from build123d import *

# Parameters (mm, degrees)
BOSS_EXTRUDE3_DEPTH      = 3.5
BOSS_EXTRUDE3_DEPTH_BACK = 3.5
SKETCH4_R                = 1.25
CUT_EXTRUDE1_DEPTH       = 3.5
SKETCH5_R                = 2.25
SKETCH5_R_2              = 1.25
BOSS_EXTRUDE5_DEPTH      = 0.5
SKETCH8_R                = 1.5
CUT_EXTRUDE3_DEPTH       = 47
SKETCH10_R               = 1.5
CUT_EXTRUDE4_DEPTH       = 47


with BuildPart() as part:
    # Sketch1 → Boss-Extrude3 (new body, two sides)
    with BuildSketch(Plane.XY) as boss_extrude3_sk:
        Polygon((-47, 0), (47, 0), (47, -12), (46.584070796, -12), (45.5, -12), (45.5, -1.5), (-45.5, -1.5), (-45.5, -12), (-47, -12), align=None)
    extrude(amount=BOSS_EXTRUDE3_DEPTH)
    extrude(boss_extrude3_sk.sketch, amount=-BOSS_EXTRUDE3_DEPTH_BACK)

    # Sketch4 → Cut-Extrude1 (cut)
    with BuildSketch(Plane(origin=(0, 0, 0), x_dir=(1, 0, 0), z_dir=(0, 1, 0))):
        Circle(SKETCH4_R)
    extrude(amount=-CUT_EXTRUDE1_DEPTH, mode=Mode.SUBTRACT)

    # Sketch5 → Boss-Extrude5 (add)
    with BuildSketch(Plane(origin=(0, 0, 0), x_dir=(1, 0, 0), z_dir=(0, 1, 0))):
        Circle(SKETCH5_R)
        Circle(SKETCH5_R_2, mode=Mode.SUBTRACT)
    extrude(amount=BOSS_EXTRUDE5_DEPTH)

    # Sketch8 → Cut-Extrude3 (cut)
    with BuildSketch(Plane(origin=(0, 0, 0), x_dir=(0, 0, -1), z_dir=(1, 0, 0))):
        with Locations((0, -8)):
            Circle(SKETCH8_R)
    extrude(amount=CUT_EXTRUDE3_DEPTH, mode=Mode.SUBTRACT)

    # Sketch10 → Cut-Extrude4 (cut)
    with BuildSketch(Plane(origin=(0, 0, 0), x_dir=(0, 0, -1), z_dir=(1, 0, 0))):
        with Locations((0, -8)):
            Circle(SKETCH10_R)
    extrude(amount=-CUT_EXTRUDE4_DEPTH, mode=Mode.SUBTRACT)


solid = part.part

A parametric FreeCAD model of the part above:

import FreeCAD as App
import Part
import Sketcher
from FreeCAD import Vector
Q = App.Units.Quantity


def add_polygon(sketch, points):
    """Adds a closed chain of lines whose ends are joined by coincident constraints."""
    first, n = sketch.GeometryCount, len(points)
    for a, b in zip(points, points[1:] + points[:1]):
        sketch.addGeometry(Part.LineSegment(App.Vector(*a, 0), App.Vector(*b, 0)), False)
    for i in range(n):
        sketch.addConstraint(Sketcher.Constraint("Coincident", first + i, 2, first + (i + 1) % n, 1))

doc = App.newDocument("Part")
params = doc.addObject("Spreadsheet::Sheet", "Params")
for row, (alias, value) in enumerate([
    ("sketch1_width", "94 mm"),
    ("sketch1_width2", "91 mm"),
    ("sketch1_height", "12 mm"),
    ("sketch1_height2", "10.5 mm"),
    ("pad1_length", "3.5 mm"),
    ("pad1_length2", "3.5 mm"),
    ("sketch2_diameter", "2.5 mm"),
    ("pocket1_length", "3.5 mm"),
    ("sketch3_diameter", "4.5 mm"),
    ("sketch3_diameter2", "2.5 mm"),
    ("pad2_length", "0.5 mm"),
    ("sketch4_diameter", "3 mm"),
    ("pocket2_length", "47 mm"),
    ("sketch5_diameter", "3 mm"),
    ("pocket3_length", "47 mm"),
], start=1):
    params.set(f"A{row}", alias)
    params.set(f"B{row}", "=" + value)
    params.setAlias(f"B{row}", alias)

body = doc.addObject("PartDesign::Body", "Body")

sketch1 = body.newObject("Sketcher::SketchObject", "Sketch")
sketch1.AttachmentSupport = (doc.getObject("XY_Plane"), [""])
sketch1.MapMode = "FlatFace"
add_polygon(sketch1, [(47, 0), (-47, 0), (-47, -12), (-45.5, -12), (-45.5, -1.5), (45.5, -1.5), (45.5, -12), (47, -12)])
sketch1.addConstraint(Sketcher.Constraint("Horizontal", 0))
sketch1.addConstraint(Sketcher.Constraint("Vertical", 1))
sketch1.addConstraint(Sketcher.Constraint("Horizontal", 2))
sketch1.addConstraint(Sketcher.Constraint("Vertical", 3))
sketch1.addConstraint(Sketcher.Constraint("Horizontal", 4))
sketch1.addConstraint(Sketcher.Constraint("Vertical", 5))
sketch1.addConstraint(Sketcher.Constraint("Horizontal", 6))
sketch1.addConstraint(Sketcher.Constraint("Vertical", 7))
sketch1.addConstraint(Sketcher.Constraint("Symmetric", 0, 2, 7, 2, -1, 1))
sketch1.addConstraint(Sketcher.Constraint("Symmetric", 2, 2, 5, 2, -2))
sketch1.addConstraint(Sketcher.Constraint("DistanceX", 0, 2, 0, 1, Q("94 mm")))
sketch1.addConstraint(Sketcher.Constraint("DistanceX", 4, 1, 4, 2, Q("91 mm")))
sketch1.addConstraint(Sketcher.Constraint("DistanceY", 1, 2, 1, 1, Q("12 mm")))
sketch1.addConstraint(Sketcher.Constraint("DistanceY", 3, 1, 3, 2, Q("10.5 mm")))
sketch1.setExpression("Constraints[18]", "Params.sketch1_width")
sketch1.setExpression("Constraints[19]", "Params.sketch1_width2")
sketch1.setExpression("Constraints[20]", "Params.sketch1_height")
sketch1.setExpression("Constraints[21]", "Params.sketch1_height2")
pad1 = body.newObject("PartDesign::Pad", "Pad")
pad1.Profile = sketch1
pad1.Type = "TwoLengths"
pad1.setExpression("Length", "Params.pad1_length")
pad1.setExpression("Length2", "Params.pad1_length2")

sketch2 = body.newObject("Sketcher::SketchObject", "Sketch001")
sketch2.AttachmentSupport = (doc.getObject("XZ_Plane"), [""])
sketch2.MapMode = "FlatFace"
sketch2.addGeometry(Part.Circle(Vector(0, 0, 0), Vector(0, 0, 1), 1.2), False)
sketch2.addConstraint(Sketcher.Constraint("Coincident", 0, 3, -1, 1))
sketch2.addConstraint(Sketcher.Constraint("Diameter", 0, Q("2.5 mm")))
sketch2.setExpression("Constraints[1]", "Params.sketch2_diameter")
pocket1 = body.newObject("PartDesign::Pocket", "Pocket")
pocket1.Profile = sketch2
pocket1.setExpression("Length", "Params.pocket1_length")
pocket1.Reversed = True

sketch3 = body.newObject("Sketcher::SketchObject", "Sketch002")
sketch3.AttachmentSupport = (doc.getObject("XZ_Plane"), [""])
sketch3.MapMode = "FlatFace"
sketch3.addGeometry(Part.Circle(Vector(0, 0, 0), Vector(0, 0, 1), 2.2), False)
sketch3.addGeometry(Part.Circle(Vector(0, 0, 0), Vector(0, 0, 1), 1.2), False)
sketch3.addConstraint(Sketcher.Constraint("Coincident", 0, 3, -1, 1))
sketch3.addConstraint(Sketcher.Constraint("Coincident", 1, 3, -1, 1))
sketch3.addConstraint(Sketcher.Constraint("Diameter", 0, Q("4.5 mm")))
sketch3.addConstraint(Sketcher.Constraint("Diameter", 1, Q("2.5 mm")))
sketch3.setExpression("Constraints[2]", "Params.sketch3_diameter")
sketch3.setExpression("Constraints[3]", "Params.sketch3_diameter2")
pad2 = body.newObject("PartDesign::Pad", "Pad001")
pad2.Profile = sketch3
pad2.setExpression("Length", "Params.pad2_length")
pad2.Reversed = True

sketch4 = body.newObject("Sketcher::SketchObject", "Sketch003")
sketch4.AttachmentSupport = (doc.getObject("YZ_Plane"), [""])
sketch4.MapMode = "FlatFace"
sketch4.addGeometry(Part.Circle(Vector(-8, 0, 0), Vector(0, 0, 1), 1.5), False)
sketch4.addConstraint(Sketcher.Constraint("PointOnObject", 0, 3, -1))
sketch4.addConstraint(Sketcher.Constraint("Diameter", 0, Q("3 mm")))
sketch4.addConstraint(Sketcher.Constraint("DistanceX", 0, 3, -1, 1, Q("8 mm")))
sketch4.setExpression("Constraints[1]", "Params.sketch4_diameter")
pocket2 = body.newObject("PartDesign::Pocket", "Pocket001")
pocket2.Profile = sketch4
pocket2.setExpression("Length", "Params.pocket2_length")
pocket2.Reversed = True

sketch5 = body.newObject("Sketcher::SketchObject", "Sketch004")
sketch5.AttachmentSupport = (doc.getObject("YZ_Plane"), [""])
sketch5.MapMode = "FlatFace"
sketch5.addGeometry(Part.Circle(Vector(-8, 0, 0), Vector(0, 0, 1), 1.5), False)
sketch5.addConstraint(Sketcher.Constraint("PointOnObject", 0, 3, -1))
sketch5.addConstraint(Sketcher.Constraint("Diameter", 0, Q("3 mm")))
sketch5.addConstraint(Sketcher.Constraint("DistanceX", 0, 3, -1, 1, Q("8 mm")))
sketch5.setExpression("Constraints[1]", "Params.sketch5_diameter")
pocket3 = body.newObject("PartDesign::Pocket", "Pocket002")
pocket3.Profile = sketch5
pocket3.setExpression("Length", "Params.pocket3_length")

doc.recompute()
